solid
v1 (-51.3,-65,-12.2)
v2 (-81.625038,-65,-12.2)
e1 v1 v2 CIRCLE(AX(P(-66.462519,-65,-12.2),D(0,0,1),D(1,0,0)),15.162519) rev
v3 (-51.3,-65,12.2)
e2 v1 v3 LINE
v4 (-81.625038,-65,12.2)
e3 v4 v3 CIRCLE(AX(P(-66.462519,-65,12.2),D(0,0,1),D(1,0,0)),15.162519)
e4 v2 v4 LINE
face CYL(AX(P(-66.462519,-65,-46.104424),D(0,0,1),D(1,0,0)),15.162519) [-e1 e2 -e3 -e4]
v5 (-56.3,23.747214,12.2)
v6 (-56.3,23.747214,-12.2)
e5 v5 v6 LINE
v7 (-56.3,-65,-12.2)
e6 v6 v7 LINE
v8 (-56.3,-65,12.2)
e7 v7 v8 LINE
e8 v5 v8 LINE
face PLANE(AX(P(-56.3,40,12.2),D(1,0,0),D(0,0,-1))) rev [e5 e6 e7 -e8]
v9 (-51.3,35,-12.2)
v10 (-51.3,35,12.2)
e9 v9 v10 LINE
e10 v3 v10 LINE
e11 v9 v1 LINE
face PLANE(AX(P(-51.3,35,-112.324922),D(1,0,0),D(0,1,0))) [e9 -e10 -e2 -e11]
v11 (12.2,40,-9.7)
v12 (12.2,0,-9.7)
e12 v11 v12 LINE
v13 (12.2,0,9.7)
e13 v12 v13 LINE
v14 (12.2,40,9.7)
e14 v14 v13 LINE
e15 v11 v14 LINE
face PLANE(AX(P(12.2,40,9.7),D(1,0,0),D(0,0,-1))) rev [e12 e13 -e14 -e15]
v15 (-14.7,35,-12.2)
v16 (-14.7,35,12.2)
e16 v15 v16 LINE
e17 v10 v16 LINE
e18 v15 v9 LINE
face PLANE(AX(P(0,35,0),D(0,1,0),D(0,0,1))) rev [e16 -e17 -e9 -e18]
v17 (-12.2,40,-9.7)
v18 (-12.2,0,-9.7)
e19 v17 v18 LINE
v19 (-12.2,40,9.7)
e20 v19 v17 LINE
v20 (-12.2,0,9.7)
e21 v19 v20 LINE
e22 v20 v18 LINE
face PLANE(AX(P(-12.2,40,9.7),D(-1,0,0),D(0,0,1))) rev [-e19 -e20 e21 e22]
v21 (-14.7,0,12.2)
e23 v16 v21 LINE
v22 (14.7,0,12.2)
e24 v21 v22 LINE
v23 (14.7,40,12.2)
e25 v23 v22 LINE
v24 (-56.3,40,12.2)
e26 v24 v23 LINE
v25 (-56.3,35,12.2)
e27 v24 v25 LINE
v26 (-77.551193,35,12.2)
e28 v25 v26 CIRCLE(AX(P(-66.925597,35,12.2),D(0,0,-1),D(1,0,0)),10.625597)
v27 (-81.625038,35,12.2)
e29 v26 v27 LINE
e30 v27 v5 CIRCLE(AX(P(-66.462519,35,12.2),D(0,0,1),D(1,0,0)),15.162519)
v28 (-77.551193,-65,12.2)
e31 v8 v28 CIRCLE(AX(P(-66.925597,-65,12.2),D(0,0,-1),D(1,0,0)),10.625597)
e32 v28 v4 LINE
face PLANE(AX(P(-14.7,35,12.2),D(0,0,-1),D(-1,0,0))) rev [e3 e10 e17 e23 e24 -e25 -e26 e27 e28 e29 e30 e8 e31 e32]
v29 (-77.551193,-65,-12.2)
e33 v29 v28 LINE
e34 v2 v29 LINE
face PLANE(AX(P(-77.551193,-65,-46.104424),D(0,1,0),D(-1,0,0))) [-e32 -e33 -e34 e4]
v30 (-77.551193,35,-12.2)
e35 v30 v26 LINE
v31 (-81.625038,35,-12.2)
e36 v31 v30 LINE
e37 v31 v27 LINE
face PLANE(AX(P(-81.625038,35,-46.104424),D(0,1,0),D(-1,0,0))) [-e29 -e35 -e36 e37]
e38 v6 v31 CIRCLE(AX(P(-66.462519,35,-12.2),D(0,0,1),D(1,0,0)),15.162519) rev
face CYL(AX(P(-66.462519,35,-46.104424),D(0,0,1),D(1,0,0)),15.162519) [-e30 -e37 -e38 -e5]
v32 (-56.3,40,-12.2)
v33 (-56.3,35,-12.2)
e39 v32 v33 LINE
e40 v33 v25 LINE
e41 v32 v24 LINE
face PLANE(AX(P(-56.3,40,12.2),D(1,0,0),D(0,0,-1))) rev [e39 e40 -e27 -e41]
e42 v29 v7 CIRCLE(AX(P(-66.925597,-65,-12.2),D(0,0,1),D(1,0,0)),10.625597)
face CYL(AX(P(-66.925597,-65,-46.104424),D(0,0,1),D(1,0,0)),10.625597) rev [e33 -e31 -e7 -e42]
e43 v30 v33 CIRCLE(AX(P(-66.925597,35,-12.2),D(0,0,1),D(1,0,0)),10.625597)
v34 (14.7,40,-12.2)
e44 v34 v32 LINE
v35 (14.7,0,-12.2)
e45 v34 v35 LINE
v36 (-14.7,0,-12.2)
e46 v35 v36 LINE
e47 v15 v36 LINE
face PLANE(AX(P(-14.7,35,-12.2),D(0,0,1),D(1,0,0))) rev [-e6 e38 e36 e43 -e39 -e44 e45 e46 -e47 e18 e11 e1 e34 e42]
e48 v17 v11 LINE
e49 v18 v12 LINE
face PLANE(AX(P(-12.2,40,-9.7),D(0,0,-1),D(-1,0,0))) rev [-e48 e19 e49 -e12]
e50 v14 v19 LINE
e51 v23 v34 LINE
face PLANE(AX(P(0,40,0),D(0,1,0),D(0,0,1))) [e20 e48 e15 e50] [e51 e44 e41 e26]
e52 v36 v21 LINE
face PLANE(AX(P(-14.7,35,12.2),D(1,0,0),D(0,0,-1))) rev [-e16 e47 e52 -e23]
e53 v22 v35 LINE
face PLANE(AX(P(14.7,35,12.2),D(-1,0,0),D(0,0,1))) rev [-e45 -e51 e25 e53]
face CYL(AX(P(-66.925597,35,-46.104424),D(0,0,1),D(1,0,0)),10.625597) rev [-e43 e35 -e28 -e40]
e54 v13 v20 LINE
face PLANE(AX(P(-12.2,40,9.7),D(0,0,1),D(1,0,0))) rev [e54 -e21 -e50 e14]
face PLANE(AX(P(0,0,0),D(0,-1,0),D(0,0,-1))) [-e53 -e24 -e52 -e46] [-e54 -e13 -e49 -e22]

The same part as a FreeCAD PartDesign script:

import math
import FreeCAD as App
import Part
import Sketcher
Q = App.Units.Quantity


def add_polygon(sketch, points):
    """Adds a closed chain of lines whose ends are joined by coincident constraints."""
    first, n = sketch.GeometryCount, len(points)
    for a, b in zip(points, points[1:] + points[:1]):
        sketch.addGeometry(Part.LineSegment(App.Vector(*a, 0), App.Vector(*b, 0)), False)
    for i in range(n):
        sketch.addConstraint(Sketcher.Constraint("Coincident", first + i, 2, first + (i + 1) % n, 1))

doc = App.newDocument("Part")
params = doc.addObject("Spreadsheet::Sheet", "Params")
for row, (alias, value) in enumerate([
    ("sketch1_width", "29.4 mm"),
    ("sketch1_height", "24.4 mm"),
    ("pad1_length", "35 mm"),
    ("sketch2_width", "71 mm"),
    ("sketch2_height", "24.4 mm"),
    ("pad2_length", "5 mm"),
    ("sketch3_width", "5 mm"),
    ("sketch3_height", "100 mm"),
    ("pad3_length", "24.4 mm"),
    ("sketch4_width", "5 mm"),
    ("pad4_length", "24.4 mm"),
    ("sketch5_width", "24.4 mm"),
    ("sketch5_height", "19.4 mm"),
], start=1):
    params.set(f"A{row}", alias)
    params.set(f"B{row}", "=" + value)
    params.setAlias(f"B{row}", alias)

body = doc.addObject("PartDesign::Body", "Body")

# Sketch on XZ plane
sketch1 = body.newObject("Sketcher::SketchObject", "Sketch")
sketch1.AttachmentSupport = (doc.getObject("XZ_Plane"), [""])
sketch1.MapMode = "FlatFace"
add_polygon(sketch1, [(-15, -12), (-15, 12), (15, 12), (15, -12)])  # lines 0-3
sketch1.addConstraint(Sketcher.Constraint("Vertical", 0))
sketch1.addConstraint(Sketcher.Constraint("Horizontal", 1))
sketch1.addConstraint(Sketcher.Constraint("Vertical", 2))
sketch1.addConstraint(Sketcher.Constraint("Horizontal", 3))
sketch1.addConstraint(Sketcher.Constraint("Symmetric", 0, 2, 2, 2, -1, 1))
sketch1.addConstraint(Sketcher.Constraint("DistanceX", 1, 1, 1, 2, Q("29.4 mm")))
sketch1.addConstraint(Sketcher.Constraint("DistanceY", 0, 1, 0, 2, Q("24.4 mm")))
sketch1.setExpression("Constraints[9]", "Params.sketch1_width")
sketch1.setExpression("Constraints[10]", "Params.sketch1_height")
pad1 = body.newObject("PartDesign::Pad", "Pad")
pad1.Profile = sketch1
pad1.setExpression("Length", "Params.pad1_length")
pad1.Reversed = True

# Sketch on XZ plane
sketch2 = body.newObject("Sketcher::SketchObject", "Sketch001")
sketch2.AttachmentSupport = (doc.getObject("XZ_Plane"), [""])
sketch2.MapMode = "FlatFace"
sketch2.AttachmentOffset = App.Placement(App.Vector(0, 0, -35), App.Rotation())
add_polygon(sketch2, [(-56, -12), (-56, 12), (15, 12), (15, -12)])  # lines 0-3
sketch2.addConstraint(Sketcher.Constraint("Vertical", 0))
sketch2.addConstraint(Sketcher.Constraint("Horizontal", 1))
sketch2.addConstraint(Sketcher.Constraint("Vertical", 2))
sketch2.addConstraint(Sketcher.Constraint("Horizontal", 3))
sketch2.addConstraint(Sketcher.Constraint("DistanceX", 1, 1, 1, 2, Q("71 mm")))
sketch2.addConstraint(Sketcher.Constraint("DistanceY", 0, 1, 0, 2, Q("24.4 mm")))
sketch2.addConstraint(Sketcher.Constraint("DistanceX", 0, 2, -1, 1, Q("56.3 mm")))
sketch2.addConstraint(Sketcher.Constraint("DistanceY", -1, 1, 0, 2, Q("12.2 mm")))
sketch2.setExpression("Constraints[8]", "Params.sketch2_width")
sketch2.setExpression("Constraints[9]", "Params.sketch2_height")
pad2 = body.newObject("PartDesign::Pad", "Pad001")
pad2.Profile = sketch2
pad2.setExpression("Length", "Params.pad2_length")
pad2.Reversed = True

# Sketch on XY plane
sketch3 = body.newObject("Sketcher::SketchObject", "Sketch002")
sketch3.AttachmentSupport = (doc.getObject("XY_Plane"), [""])
sketch3.MapMode = "FlatFace"
sketch3.AttachmentOffset = App.Placement(App.Vector(0, 0, 12.2), App.Rotation())
add_polygon(sketch3, [(-56, 35), (-56, -65), (-51, -65), (-51, 35)])  # lines 0-3
sketch3.addConstraint(Sketcher.Constraint("Vertical", 0))
sketch3.addConstraint(Sketcher.Constraint("Horizontal", 1))
sketch3.addConstraint(Sketcher.Constraint("Vertical", 2))
sketch3.addConstraint(Sketcher.Constraint("Horizontal", 3))
sketch3.addConstraint(Sketcher.Constraint("DistanceX", 1, 1, 1, 2, Q("5 mm")))
sketch3.addConstraint(Sketcher.Constraint("DistanceY", 0, 2, 0, 1, Q("100 mm")))
sketch3.addConstraint(Sketcher.Constraint("DistanceY", 0, 2, -1, 1, Q("65 mm")))
sketch3.addConstraint(Sketcher.Constraint("DistanceX", 0, 2, -1, 1, Q("56.3 mm")))
sketch3.setExpression("Constraints[8]", "Params.sketch3_width")
sketch3.setExpression("Constraints[9]", "Params.sketch3_height")
pad3 = body.newObject("PartDesign::Pad", "Pad002")
pad3.Profile = sketch3
pad3.setExpression("Length", "Params.pad3_length")
pad3.Reversed = True

# Sketch on XY plane
sketch4 = body.newObject("Sketcher::SketchObject", "Sketch003")
sketch4.AttachmentSupport = (doc.getObject("XY_Plane"), [""])
sketch4.MapMode = "FlatFace"
sketch4.AttachmentOffset = App.Placement(App.Vector(0, 0, 12.2), App.Rotation())
sketch4.addGeometry(Part.LineSegment(App.Vector(-51.3, -65, 0), App.Vector(-56.3, -65, 0)), False)
sketch4.addGeometry(Part.ArcOfCircle(Part.Circle(App.Vector(-66.9, -65, 0), App.Vector(0, 0, 1), 10.6), math.radians(180), math.radians(360)), False)
sketch4.addGeometry(Part.LineSegment(App.Vector(-77.6, -65, 0), App.Vector(-81.6, -65, 0)), False)
sketch4.addGeometry(Part.ArcOfCircle(Part.Circle(App.Vector(-66.5, -65, 0), App.Vector(0, 0, 1), 15.2), math.radians(180), math.radians(360)), False)
sketch4.addGeometry(Part.LineSegment(App.Vector(-77.6, 35, 0), App.Vector(-81.6, 35, 0)), False)
sketch4.addGeometry(Part.ArcOfCircle(Part.Circle(App.Vector(-66.5, 35, 0), App.Vector(0, 0, 1), 15.2), math.radians(180), math.radians(360)), False)
sketch4.addGeometry(Part.LineSegment(App.Vector(-51.3, 35, 0), App.Vector(-56.3, 35, 0)), False)
sketch4.addGeometry(Part.ArcOfCircle(Part.Circle(App.Vector(-66.9, 35, 0), App.Vector(0, 0, 1), 10.6), math.radians(180), math.radians(360)), False)
sketch4.addConstraint(Sketcher.Constraint("Coincident", 0, 2, 1, 2))
sketch4.addConstraint(Sketcher.Constraint("Coincident", 1, 1, 2, 1))
sketch4.addConstraint(Sketcher.Constraint("Coincident", 2, 2, 3, 1))
sketch4.addConstraint(Sketcher.Constraint("Coincident", 3, 2, 0, 1))
sketch4.addConstraint(Sketcher.Constraint("Coincident", 4, 2, 5, 1))
sketch4.addConstraint(Sketcher.Constraint("Coincident", 5, 2, 6, 1))
sketch4.addConstraint(Sketcher.Constraint("Coincident", 6, 2, 7, 2))
sketch4.addConstraint(Sketcher.Constraint("Coincident", 7, 1, 4, 1))
sketch4.addConstraint(Sketcher.Constraint("Horizontal", 0))
sketch4.addConstraint(Sketcher.Constraint("Horizontal", 2))
sketch4.addConstraint(Sketcher.Constraint("Horizontal", 4))
sketch4.addConstraint(Sketcher.Constraint("Horizontal", 6))
sketch4.addConstraint(Sketcher.Constraint("Equal", 3, 5))
sketch4.addConstraint(Sketcher.Constraint("Equal", 1, 7))
sketch4.addConstraint(Sketcher.Constraint("Horizontal", 1, 3, 3, 3))
sketch4.addConstraint(Sketcher.Constraint("Horizontal", 5, 3, 7, 3))
sketch4.addConstraint(Sketcher.Constraint("Horizontal", 3, 3, 0, 2))
sketch4.addConstraint(Sketcher.Constraint("Horizontal", 0, 2, 1, 1))
sketch4.addConstraint(Sketcher.Constraint("Horizontal", 7, 3, 4, 2))
sketch4.addConstraint(Sketcher.Constraint("Horizontal", 4, 2, 5, 2))
sketch4.addConstraint(Sketcher.Constraint("Vertical", 3, 3, 5, 3))
sketch4.addConstraint(Sketcher.Constraint("Vertical", 1, 3, 7, 3))
sketch4.addConstraint(Sketcher.Constraint("DistanceX", 0, 2, 0, 1, Q("5 mm")))
sketch4.addConstraint(Sketcher.Constraint("DistanceY", 1, 3, -1, 1, Q("65 mm")))
sketch4.addConstraint(Sketcher.Constraint("DistanceY", -1, 1, 5, 3, Q("35 mm")))
sketch4.addConstraint(Sketcher.Constraint("DistanceX", 0, 2, -1, 1, Q("56.3 mm")))
sketch4.addConstraint(Sketcher.Constraint("Radius", 3, Q("15.162519 mm")))
sketch4.addConstraint(Sketcher.Constraint("Radius", 1, Q("10.625597 mm")))
sketch4.setExpression("Constraints[22]", "Params.sketch4_width")
pad4 = body.newObject("PartDesign::Pad", "Pad003")
pad4.Profile = sketch4
pad4.setExpression("Length", "Params.pad4_length")
pad4.Reversed = True

# Sketch on XZ plane
sketch5 = body.newObject("Sketcher::SketchObject", "Sketch004")
sketch5.AttachmentSupport = (doc.getObject("XZ_Plane"), [""])
sketch5.MapMode = "FlatFace"
add_polygon(sketch5, [(-12, 10), (-12, -10), (12, -10), (12, 10)])  # lines 0-3
sketch5.addConstraint(Sketcher.Constraint("Vertical", 0))
sketch5.addConstraint(Sketcher.Constraint("Horizontal", 1))
sketch5.addConstraint(Sketcher.Constraint("Vertical", 2))
sketch5.addConstraint(Sketcher.Constraint("Horizontal", 3))
sketch5.addConstraint(Sketcher.Constraint("Symmetric", 0, 2, 2, 2, -1, 1))
sketch5.addConstraint(Sketcher.Constraint("DistanceX", 1, 1, 1, 2, Q("24.4 mm")))
sketch5.addConstraint(Sketcher.Constraint("DistanceY", 0, 2, 0, 1, Q("19.4 mm")))
sketch5.setExpression("Constraints[9]", "Params.sketch5_width")
sketch5.setExpression("Constraints[10]", "Params.sketch5_height")
pocket1 = body.newObject("PartDesign::Pocket", "Pocket")
pocket1.Profile = sketch5
pocket1.Type = "ThroughAll"
pocket1.Midplane = True

doc.recompute()
